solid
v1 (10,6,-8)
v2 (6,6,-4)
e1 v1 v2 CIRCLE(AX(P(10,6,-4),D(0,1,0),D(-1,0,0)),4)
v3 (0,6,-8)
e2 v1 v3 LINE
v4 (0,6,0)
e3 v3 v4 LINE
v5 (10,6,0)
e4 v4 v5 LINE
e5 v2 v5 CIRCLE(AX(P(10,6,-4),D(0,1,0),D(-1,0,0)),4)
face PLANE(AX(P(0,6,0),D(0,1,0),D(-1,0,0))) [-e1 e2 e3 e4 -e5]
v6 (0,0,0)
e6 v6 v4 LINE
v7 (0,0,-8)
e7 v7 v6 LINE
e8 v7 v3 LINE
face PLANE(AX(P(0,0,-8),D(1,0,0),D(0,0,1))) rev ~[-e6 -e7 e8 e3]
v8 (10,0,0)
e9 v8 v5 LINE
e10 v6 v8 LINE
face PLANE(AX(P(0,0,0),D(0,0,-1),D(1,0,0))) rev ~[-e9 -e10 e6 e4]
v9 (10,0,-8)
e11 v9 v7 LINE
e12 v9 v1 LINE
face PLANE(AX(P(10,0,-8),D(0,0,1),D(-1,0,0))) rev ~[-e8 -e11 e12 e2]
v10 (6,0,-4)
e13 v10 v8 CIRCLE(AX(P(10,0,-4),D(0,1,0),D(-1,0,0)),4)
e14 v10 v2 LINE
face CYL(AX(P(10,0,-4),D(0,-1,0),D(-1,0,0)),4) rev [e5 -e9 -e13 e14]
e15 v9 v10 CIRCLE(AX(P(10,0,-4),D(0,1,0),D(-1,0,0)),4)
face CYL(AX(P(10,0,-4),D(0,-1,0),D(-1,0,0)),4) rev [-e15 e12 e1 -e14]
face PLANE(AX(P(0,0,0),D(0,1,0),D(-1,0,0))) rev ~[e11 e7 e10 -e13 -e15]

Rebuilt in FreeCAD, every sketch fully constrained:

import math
import FreeCAD as App
import Part
import Sketcher
from FreeCAD import Vector

doc = App.newDocument("Part")
body = doc.addObject("PartDesign::Body", "Body")

# Sketch on XZ plane
sketch1 = body.newObject("Sketcher::SketchObject", "Sketch")
sketch1.AttachmentSupport = (doc.getObject("XZ_Plane"), [""])
sketch1.MapMode = "FlatFace"
sketch1.addGeometry([
    Part.LineSegment(Vector(0, -8, 0), Vector(0, 0, 0)),
    Part.LineSegment(Vector(0, 0, 0), Vector(10, 0, 0)),
    Part.ArcOfCircle(Part.Circle(Vector(10, -4, 0), Vector(0, 0, 1), 4), math.radians(90), math.radians(270)),
    Part.LineSegment(Vector(10, -8, 0), Vector(0, -8, 0)),
], False)
sketch1.addConstraint([
    Sketcher.Constraint("Coincident", 0, 2, 1, 1),
    Sketcher.Constraint("Tangent", 1, 2, 2, 1),
    Sketcher.Constraint("Tangent", 2, 2, 3, 1),
    Sketcher.Constraint("Coincident", 3, 2, 0, 1),
    Sketcher.Constraint("Vertical", 0),
    Sketcher.Constraint("Horizontal", 1),
    Sketcher.Constraint("Horizontal", 3),
    Sketcher.Constraint("Coincident", 0, 2, -1, 1),
    Sketcher.Constraint("Radius", 2, 4.0),
    Sketcher.Constraint("DistanceX", 1, 1, 1, 2, 10.0),
])
pad1 = body.newObject("PartDesign::Pad", "Pad")
pad1.Profile = sketch1
pad1.Length = 6
pad1.Reversed = True

doc.recompute()
